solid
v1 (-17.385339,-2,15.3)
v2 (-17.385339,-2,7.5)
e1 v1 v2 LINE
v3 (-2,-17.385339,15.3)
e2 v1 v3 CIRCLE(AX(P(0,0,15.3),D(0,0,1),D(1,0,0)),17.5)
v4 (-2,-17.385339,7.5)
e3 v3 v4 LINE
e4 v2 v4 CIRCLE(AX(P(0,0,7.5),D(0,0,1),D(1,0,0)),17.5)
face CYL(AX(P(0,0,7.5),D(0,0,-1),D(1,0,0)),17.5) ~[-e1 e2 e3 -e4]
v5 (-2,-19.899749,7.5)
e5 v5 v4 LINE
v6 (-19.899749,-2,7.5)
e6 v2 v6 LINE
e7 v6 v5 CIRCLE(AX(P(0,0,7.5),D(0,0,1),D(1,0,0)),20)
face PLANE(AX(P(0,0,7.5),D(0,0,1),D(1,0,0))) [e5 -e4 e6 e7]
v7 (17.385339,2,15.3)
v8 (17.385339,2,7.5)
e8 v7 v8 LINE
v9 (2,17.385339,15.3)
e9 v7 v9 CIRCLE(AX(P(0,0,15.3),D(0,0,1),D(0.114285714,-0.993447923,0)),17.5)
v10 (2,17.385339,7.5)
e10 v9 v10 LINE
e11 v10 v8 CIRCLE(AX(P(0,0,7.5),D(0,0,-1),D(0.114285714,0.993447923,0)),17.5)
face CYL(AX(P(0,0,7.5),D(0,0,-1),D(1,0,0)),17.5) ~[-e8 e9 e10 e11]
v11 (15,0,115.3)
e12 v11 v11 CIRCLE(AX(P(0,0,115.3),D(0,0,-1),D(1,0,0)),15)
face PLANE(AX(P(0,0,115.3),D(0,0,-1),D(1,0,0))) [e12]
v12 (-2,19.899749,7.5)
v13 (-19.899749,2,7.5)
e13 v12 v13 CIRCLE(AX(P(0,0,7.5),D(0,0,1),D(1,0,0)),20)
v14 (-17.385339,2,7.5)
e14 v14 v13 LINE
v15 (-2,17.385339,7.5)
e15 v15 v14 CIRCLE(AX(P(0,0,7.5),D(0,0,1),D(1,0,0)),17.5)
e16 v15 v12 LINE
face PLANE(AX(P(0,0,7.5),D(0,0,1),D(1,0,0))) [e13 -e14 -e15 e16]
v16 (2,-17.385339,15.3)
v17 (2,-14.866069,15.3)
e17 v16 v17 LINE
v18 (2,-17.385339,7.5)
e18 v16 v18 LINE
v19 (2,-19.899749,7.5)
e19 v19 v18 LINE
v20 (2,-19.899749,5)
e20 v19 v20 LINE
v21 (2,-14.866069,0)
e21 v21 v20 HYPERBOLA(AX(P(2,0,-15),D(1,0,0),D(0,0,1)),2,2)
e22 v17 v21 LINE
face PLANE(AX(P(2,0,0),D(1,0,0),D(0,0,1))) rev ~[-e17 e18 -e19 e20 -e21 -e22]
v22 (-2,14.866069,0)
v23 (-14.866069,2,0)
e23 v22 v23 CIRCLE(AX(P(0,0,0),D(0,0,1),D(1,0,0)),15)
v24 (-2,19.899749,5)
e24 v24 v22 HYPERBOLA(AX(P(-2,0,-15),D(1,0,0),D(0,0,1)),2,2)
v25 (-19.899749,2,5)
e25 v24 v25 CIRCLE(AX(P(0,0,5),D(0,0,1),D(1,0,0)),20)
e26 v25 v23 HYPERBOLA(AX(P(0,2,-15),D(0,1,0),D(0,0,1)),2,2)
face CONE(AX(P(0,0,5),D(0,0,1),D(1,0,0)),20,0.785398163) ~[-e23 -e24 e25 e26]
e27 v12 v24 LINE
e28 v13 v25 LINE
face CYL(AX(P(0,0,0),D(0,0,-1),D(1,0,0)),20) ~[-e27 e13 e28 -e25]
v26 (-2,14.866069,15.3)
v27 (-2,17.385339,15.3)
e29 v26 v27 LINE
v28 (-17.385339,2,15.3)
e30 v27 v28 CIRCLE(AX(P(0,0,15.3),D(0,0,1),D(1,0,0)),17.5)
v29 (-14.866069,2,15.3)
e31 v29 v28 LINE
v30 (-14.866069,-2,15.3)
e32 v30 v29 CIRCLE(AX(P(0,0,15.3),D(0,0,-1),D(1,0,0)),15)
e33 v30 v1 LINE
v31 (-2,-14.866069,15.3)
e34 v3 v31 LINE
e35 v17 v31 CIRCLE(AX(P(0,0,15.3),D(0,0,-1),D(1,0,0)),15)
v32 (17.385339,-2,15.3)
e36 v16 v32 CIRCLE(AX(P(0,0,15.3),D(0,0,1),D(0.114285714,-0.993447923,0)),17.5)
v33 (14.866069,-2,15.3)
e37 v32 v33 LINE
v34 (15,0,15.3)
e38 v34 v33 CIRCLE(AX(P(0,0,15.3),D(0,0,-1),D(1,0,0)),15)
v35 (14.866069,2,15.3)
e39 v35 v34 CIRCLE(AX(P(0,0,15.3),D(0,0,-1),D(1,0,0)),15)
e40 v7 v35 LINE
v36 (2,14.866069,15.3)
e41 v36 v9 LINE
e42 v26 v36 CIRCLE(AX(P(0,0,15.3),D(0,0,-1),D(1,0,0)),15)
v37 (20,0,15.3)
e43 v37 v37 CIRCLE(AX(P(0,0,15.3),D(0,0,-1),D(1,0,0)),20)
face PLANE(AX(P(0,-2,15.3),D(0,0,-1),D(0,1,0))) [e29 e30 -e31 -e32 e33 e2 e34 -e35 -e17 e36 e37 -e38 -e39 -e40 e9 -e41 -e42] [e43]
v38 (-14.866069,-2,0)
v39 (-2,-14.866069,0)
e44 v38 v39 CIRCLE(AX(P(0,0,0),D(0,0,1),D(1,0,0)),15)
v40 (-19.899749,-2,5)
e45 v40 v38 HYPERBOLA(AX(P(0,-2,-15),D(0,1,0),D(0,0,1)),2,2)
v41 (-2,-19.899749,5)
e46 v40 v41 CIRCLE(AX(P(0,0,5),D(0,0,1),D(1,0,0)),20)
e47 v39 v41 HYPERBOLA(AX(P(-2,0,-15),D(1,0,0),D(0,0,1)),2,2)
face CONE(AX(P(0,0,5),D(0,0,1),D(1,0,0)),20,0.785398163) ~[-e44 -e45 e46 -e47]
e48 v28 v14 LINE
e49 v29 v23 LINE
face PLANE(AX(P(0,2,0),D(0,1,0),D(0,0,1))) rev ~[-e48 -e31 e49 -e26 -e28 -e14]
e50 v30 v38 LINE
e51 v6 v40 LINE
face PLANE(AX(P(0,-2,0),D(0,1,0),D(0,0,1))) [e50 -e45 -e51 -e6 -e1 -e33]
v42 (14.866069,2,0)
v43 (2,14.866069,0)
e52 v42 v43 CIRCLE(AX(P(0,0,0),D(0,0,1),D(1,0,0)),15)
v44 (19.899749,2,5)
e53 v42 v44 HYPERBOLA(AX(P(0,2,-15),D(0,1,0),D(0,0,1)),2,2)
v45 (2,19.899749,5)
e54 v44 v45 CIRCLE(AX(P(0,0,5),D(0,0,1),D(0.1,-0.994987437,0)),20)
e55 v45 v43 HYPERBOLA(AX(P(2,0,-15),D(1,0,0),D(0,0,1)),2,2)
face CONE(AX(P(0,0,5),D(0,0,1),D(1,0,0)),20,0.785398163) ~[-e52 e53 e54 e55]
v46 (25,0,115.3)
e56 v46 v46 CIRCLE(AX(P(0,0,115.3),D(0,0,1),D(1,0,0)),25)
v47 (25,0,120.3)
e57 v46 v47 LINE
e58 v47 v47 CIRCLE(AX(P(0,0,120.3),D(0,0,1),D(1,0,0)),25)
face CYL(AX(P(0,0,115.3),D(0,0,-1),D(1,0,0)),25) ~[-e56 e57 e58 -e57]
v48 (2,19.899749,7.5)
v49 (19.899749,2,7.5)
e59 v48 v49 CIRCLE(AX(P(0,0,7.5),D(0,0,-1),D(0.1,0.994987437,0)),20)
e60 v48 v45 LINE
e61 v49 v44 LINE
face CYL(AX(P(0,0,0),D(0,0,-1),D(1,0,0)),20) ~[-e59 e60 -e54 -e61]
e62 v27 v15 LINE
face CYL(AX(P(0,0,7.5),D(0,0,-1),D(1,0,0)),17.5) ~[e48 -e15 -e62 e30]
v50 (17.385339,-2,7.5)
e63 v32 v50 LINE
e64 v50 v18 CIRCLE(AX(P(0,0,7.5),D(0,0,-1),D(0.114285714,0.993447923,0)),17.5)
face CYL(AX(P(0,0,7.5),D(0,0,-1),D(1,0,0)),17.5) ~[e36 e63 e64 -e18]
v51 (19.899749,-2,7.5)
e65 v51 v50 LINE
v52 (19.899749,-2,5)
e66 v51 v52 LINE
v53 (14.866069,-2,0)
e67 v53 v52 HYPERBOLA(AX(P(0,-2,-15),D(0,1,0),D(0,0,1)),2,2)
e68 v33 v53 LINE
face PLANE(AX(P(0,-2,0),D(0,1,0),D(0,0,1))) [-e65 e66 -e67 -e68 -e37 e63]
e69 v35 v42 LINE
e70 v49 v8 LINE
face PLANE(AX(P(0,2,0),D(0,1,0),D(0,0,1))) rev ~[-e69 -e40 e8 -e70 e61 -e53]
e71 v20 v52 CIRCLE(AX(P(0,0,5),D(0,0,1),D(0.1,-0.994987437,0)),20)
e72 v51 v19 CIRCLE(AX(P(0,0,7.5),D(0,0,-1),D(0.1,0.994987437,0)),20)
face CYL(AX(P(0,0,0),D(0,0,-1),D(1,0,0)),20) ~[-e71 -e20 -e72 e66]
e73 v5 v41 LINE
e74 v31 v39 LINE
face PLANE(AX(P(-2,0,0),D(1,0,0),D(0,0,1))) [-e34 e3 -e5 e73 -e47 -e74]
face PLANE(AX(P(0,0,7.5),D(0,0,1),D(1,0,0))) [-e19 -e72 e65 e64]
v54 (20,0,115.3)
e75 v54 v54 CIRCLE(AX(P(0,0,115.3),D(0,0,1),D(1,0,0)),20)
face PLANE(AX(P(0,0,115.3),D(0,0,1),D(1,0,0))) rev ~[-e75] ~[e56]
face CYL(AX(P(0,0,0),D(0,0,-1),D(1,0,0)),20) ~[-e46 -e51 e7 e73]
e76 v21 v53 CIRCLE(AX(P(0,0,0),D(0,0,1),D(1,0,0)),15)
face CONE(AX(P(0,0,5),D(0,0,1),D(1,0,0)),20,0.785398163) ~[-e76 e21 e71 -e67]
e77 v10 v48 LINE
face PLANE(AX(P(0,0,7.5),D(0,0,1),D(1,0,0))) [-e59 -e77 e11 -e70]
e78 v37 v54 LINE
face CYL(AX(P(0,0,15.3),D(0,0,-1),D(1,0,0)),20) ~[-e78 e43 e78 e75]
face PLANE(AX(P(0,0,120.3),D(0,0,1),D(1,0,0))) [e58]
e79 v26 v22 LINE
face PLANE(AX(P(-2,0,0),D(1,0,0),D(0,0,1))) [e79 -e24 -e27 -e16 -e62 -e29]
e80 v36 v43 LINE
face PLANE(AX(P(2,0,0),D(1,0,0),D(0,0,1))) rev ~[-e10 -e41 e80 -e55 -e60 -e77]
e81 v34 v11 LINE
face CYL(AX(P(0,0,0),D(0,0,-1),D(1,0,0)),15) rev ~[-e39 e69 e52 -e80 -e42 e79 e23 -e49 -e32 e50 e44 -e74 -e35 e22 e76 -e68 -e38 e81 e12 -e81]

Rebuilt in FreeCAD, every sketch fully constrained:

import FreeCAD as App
import Part
import Sketcher


def edges_at(feature, points):
    """Names of the edges that pass closest to the given points."""
    edges = feature.Shape.Edges
    near = lambda p: min(range(len(edges)), key=lambda i: edges[i].distToShape(Part.Vertex(*p))[0])
    return sorted({f"Edge{near(p) + 1}" for p in points})


def add_polygon(sketch, points):
    """Adds a closed chain of lines whose ends are joined by coincident constraints."""
    first, n = sketch.GeometryCount, len(points)
    for a, b in zip(points, points[1:] + points[:1]):
        sketch.addGeometry(Part.LineSegment(App.Vector(*a, 0), App.Vector(*b, 0)), False)
    for i in range(n):
        sketch.addConstraint(Sketcher.Constraint("Coincident", first + i, 2, first + (i + 1) % n, 1))

doc = App.newDocument("Part")
body = doc.addObject("PartDesign::Body", "Body")

# Sketch on XY plane
sketch1 = body.newObject("Sketcher::SketchObject", "Sketch")
sketch1.AttachmentSupport = (doc.getObject("XY_Plane"), [""])
sketch1.MapMode = "FlatFace"
sketch1.addGeometry(Part.Circle(App.Vector(0, 0, 0), App.Vector(0, 0, 1), 20), False)
sketch1.addConstraint(Sketcher.Constraint("Coincident", 0, 3, -1, 1))
sketch1.addConstraint(Sketcher.Constraint("Diameter", 0, 40.0))
pad1 = body.newObject("PartDesign::Pad", "Pad")
pad1.Profile = sketch1
pad1.Length = 7.5

# Sketch on XY plane
sketch2 = body.newObject("Sketcher::SketchObject", "Sketch001")
sketch2.AttachmentSupport = (doc.getObject("XY_Plane"), [""])
sketch2.MapMode = "FlatFace"
sketch2.AttachmentOffset = App.Placement(App.Vector(0, 0, 7.5), App.Rotation())
sketch2.addGeometry(Part.Circle(App.Vector(0, 0, 0), App.Vector(0, 0, 1), 18), False)
sketch2.addConstraint(Sketcher.Constraint("Coincident", 0, 3, -1, 1))
sketch2.addConstraint(Sketcher.Constraint("Diameter", 0, 35.0))
pad2 = body.newObject("PartDesign::Pad", "Pad001")
pad2.Profile = sketch2
pad2.Length = 7.8

# Sketch on XY plane
sketch3 = body.newObject("Sketcher::SketchObject", "Sketch002")
sketch3.AttachmentSupport = (doc.getObject("XY_Plane"), [""])
sketch3.MapMode = "FlatFace"
sketch3.AttachmentOffset = App.Placement(App.Vector(0, 0, 15.3), App.Rotation())
sketch3.addGeometry(Part.Circle(App.Vector(0, 0, 0), App.Vector(0, 0, 1), 20), False)
sketch3.addConstraint(Sketcher.Constraint("Coincident", 0, 3, -1, 1))
sketch3.addConstraint(Sketcher.Constraint("Diameter", 0, 40.0))
pad3 = body.newObject("PartDesign::Pad", "Pad002")
pad3.Profile = sketch3
pad3.Length = 100

# Sketch on XY plane
sketch4 = body.newObject("Sketcher::SketchObject", "Sketch003")
sketch4.AttachmentSupport = (doc.getObject("XY_Plane"), [""])
sketch4.MapMode = "FlatFace"
sketch4.AttachmentOffset = App.Placement(App.Vector(0, 0, 115.3), App.Rotation())
sketch4.addGeometry(Part.Circle(App.Vector(0, 0, 0), App.Vector(0, 0, 1), 25), False)
sketch4.addConstraint(Sketcher.Constraint("Coincident", 0, 3, -1, 1))
sketch4.addConstraint(Sketcher.Constraint("Diameter", 0, 50.0))
pad4 = body.newObject("PartDesign::Pad", "Pad003")
pad4.Profile = sketch4
pad4.Length = 5
doc.recompute()

chamfer = body.newObject("PartDesign::Chamfer", "Chamfer")
chamfer.Base = (pad4, edges_at(pad4, [(-20, 0, 0)]))
chamfer.Size = 5

# Sketch on XY plane
sketch5 = body.newObject("Sketcher::SketchObject", "Sketch004")
sketch5.AttachmentSupport = (doc.getObject("XY_Plane"), [""])
sketch5.MapMode = "FlatFace"
sketch5.addGeometry(Part.Circle(App.Vector(0, 0, 0), App.Vector(0, 0, 1), 15), False)
sketch5.addConstraint(Sketcher.Constraint("Coincident", 0, 3, -1, 1))
sketch5.addConstraint(Sketcher.Constraint("Diameter", 0, 30.0))
pocket1 = body.newObject("PartDesign::Pocket", "Pocket")
pocket1.Profile = sketch5
pocket1.Length = 115.3
pocket1.Reversed = True

# Sketch on XZ plane
sketch6 = body.newObject("Sketcher::SketchObject", "Sketch005")
sketch6.AttachmentSupport = (doc.getObject("XZ_Plane"), [""])
sketch6.MapMode = "FlatFace"
add_polygon(sketch6, [(-2, 15.3), (-2, 0), (2, 0), (2, 15.3)])  # lines 0-3
sketch6.addConstraint(Sketcher.Constraint("Vertical", 0))
sketch6.addConstraint(Sketcher.Constraint("Horizontal", 1))
sketch6.addConstraint(Sketcher.Constraint("Vertical", 2))
sketch6.addConstraint(Sketcher.Constraint("Horizontal", 3))
sketch6.addConstraint(Sketcher.Constraint("Symmetric", 0, 2, 1, 2, -1, 1))
sketch6.addConstraint(Sketcher.Constraint("DistanceX", 1, 1, 1, 2, 4.0))
sketch6.addConstraint(Sketcher.Constraint("DistanceY", 0, 2, 0, 1, 15.3))
pocket2 = body.newObject("PartDesign::Pocket", "Pocket001")
pocket2.Profile = sketch6
pocket2.Length = 50
pocket2.Midplane = True

# Sketch on YZ plane
sketch7 = body.newObject("Sketcher::SketchObject", "Sketch006")
sketch7.AttachmentSupport = (doc.getObject("YZ_Plane"), [""])
sketch7.MapMode = "FlatFace"
add_polygon(sketch7, [(-2, 15.3), (-2, 0), (2, 0), (2, 15.3)])  # lines 0-3
sketch7.addConstraint(Sketcher.Constraint("Vertical", 0))
sketch7.addConstraint(Sketcher.Constraint("Horizontal", 1))
sketch7.addConstraint(Sketcher.Constraint("Vertical", 2))
sketch7.addConstraint(Sketcher.Constraint("Horizontal", 3))
sketch7.addConstraint(Sketcher.Constraint("Symmetric", 0, 2, 1, 2, -1, 1))
sketch7.addConstraint(Sketcher.Constraint("DistanceX", 1, 1, 1, 2, 4.0))
sketch7.addConstraint(Sketcher.Constraint("DistanceY", 0, 2, 0, 1, 15.3))
pocket3 = body.newObject("PartDesign::Pocket", "Pocket002")
pocket3.Profile = sketch7
pocket3.Length = 50
pocket3.Midplane = True

doc.recompute()
